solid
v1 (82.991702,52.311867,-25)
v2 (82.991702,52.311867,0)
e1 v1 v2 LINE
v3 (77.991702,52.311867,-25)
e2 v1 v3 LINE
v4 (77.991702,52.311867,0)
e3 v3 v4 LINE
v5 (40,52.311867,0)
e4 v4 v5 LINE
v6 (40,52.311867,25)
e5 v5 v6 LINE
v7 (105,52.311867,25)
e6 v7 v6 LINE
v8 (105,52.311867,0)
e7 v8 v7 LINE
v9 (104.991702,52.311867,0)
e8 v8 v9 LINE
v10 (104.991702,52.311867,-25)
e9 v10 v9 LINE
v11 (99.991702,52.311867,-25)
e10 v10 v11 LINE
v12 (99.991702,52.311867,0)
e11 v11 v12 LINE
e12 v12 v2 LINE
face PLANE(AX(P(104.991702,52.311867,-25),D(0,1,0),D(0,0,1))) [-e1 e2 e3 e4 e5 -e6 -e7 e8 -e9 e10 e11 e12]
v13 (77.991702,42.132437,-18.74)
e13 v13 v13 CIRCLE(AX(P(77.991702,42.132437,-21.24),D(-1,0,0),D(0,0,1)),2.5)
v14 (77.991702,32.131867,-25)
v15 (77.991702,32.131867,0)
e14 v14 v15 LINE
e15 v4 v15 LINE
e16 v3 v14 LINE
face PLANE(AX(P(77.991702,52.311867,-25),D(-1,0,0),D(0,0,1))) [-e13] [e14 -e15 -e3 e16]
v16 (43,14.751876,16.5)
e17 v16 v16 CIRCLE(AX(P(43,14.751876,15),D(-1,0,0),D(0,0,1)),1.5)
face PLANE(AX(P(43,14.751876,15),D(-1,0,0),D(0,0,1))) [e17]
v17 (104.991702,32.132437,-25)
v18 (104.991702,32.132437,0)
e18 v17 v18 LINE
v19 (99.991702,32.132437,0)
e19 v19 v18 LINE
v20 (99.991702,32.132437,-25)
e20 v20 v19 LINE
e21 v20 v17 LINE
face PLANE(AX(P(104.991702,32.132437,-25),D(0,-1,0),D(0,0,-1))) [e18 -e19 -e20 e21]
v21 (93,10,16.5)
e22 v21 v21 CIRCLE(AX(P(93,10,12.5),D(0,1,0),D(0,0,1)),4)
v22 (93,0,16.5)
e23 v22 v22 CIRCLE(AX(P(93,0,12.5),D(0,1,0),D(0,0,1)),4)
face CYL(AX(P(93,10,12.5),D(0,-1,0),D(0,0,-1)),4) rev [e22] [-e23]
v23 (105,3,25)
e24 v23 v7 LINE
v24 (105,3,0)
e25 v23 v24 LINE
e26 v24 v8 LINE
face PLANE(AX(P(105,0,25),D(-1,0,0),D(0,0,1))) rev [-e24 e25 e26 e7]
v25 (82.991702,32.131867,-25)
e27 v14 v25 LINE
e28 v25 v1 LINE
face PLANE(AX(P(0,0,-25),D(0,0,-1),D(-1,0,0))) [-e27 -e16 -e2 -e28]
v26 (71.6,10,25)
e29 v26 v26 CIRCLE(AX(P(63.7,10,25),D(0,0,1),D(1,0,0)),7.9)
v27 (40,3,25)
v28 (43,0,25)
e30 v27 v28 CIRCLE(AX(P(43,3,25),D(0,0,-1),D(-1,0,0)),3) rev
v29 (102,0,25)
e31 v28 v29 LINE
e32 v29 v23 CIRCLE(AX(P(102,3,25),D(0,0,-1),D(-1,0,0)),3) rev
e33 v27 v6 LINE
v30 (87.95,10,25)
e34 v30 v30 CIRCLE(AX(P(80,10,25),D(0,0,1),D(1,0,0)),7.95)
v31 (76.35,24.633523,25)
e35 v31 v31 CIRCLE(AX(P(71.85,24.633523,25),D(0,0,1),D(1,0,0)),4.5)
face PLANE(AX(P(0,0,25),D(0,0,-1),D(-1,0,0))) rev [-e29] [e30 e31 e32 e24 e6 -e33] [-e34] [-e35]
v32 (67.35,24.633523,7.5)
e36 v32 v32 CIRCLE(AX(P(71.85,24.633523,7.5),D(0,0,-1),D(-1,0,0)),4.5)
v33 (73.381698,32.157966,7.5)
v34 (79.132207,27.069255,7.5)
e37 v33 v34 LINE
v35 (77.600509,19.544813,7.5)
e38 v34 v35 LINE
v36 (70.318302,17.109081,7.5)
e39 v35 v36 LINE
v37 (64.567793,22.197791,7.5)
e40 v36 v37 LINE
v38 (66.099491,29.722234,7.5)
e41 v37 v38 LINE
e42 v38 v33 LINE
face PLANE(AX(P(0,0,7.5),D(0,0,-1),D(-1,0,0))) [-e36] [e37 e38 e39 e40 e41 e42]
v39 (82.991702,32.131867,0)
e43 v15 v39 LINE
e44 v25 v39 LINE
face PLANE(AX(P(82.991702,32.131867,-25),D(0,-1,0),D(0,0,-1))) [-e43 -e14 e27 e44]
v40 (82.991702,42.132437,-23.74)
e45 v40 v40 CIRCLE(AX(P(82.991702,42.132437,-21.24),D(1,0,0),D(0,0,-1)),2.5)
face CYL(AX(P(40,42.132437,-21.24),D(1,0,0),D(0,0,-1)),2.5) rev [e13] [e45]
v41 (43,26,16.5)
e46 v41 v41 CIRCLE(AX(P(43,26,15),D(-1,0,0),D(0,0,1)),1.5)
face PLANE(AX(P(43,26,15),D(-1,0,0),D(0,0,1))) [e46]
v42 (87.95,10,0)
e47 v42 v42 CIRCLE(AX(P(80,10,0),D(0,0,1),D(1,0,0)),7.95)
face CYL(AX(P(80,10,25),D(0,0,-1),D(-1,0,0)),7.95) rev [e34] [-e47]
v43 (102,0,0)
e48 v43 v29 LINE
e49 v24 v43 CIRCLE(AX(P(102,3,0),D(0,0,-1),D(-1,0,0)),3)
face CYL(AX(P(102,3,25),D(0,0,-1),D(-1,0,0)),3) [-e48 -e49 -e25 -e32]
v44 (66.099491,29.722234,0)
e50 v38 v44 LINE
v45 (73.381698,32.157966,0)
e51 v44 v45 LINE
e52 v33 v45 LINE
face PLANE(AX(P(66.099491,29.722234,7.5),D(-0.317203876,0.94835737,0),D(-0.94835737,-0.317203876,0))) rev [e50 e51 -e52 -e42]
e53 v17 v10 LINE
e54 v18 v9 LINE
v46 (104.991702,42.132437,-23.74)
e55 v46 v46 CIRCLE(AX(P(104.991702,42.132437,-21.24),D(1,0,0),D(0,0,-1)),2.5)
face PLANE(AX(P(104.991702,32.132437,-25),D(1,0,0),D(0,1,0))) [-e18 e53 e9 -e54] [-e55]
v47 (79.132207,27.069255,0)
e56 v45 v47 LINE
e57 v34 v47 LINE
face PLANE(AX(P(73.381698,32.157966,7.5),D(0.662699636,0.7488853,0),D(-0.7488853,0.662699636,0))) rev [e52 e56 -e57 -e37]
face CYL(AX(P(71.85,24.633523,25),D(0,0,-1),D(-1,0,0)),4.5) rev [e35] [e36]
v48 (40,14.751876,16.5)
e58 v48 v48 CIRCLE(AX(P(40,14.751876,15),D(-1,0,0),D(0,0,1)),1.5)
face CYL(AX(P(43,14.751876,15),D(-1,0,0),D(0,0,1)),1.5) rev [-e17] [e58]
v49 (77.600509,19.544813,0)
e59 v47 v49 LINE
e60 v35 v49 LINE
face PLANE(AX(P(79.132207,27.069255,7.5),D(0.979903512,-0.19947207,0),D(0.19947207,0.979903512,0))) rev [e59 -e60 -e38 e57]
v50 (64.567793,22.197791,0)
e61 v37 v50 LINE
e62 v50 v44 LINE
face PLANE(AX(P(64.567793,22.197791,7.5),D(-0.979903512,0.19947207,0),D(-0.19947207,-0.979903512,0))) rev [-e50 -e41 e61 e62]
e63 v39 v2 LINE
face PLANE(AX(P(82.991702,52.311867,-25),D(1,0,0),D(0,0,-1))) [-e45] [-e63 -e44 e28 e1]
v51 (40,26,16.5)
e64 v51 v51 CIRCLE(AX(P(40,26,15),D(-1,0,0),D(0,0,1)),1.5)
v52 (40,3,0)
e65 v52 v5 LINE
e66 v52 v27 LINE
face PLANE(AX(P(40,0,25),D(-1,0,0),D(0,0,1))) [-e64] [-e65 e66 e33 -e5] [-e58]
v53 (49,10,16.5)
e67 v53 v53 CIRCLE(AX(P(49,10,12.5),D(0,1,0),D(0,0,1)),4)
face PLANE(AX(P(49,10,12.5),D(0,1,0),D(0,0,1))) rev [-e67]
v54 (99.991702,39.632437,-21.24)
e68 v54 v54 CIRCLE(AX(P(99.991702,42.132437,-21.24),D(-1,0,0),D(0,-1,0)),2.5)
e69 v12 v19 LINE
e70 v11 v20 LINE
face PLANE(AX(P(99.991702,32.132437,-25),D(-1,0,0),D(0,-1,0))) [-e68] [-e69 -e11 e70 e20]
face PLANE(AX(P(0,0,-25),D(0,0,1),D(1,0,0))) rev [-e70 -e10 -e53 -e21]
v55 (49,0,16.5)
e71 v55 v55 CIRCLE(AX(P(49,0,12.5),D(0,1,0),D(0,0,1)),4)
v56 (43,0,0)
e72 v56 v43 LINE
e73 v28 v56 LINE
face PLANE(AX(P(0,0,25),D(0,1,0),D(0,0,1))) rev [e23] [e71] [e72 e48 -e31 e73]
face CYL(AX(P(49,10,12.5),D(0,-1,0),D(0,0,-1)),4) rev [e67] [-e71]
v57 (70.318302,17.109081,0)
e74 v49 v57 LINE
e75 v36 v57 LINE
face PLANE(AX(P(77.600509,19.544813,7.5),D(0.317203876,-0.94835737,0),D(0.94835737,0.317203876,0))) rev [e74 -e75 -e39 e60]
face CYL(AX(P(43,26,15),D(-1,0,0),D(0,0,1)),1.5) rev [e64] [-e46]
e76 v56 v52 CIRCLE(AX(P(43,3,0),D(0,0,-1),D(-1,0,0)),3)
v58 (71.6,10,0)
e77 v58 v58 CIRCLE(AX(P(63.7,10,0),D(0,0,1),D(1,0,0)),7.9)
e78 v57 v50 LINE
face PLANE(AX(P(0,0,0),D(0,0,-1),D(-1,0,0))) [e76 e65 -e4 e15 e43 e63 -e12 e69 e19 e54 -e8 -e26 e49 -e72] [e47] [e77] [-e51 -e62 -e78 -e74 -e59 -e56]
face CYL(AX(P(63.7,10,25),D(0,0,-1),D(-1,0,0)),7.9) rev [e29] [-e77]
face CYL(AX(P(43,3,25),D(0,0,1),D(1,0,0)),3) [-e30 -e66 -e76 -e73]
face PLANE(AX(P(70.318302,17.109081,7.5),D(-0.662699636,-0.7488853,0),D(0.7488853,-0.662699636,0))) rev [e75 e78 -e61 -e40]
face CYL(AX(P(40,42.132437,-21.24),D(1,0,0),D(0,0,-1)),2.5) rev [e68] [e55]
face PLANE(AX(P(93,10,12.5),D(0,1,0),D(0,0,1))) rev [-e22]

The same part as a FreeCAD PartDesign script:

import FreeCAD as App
import Part
import Sketcher


def edges_at(feature, points):
    """Names of the edges that pass closest to the given points."""
    edges = feature.Shape.Edges
    near = lambda p: min(range(len(edges)), key=lambda i: edges[i].distToShape(Part.Vertex(*p))[0])
    return sorted({f"Edge{near(p) + 1}" for p in points})

doc = App.newDocument("Part")
body = doc.addObject("PartDesign::Body", "Body")

# Sketch on XY plane
sketch1 = body.newObject("Sketcher::SketchObject", "Sketch")
sketch1.AttachmentSupport = (doc.getObject("XY_Plane"), [""])
sketch1.MapMode = "FlatFace"
sketch1.addGeometry([
    Part.LineSegment(App.Vector(0, 80, 0), App.Vector(0, 0, 0)),
    Part.LineSegment(App.Vector(0, 0, 0), App.Vector(105, 0, 0)),
    Part.LineSegment(App.Vector(105, 0, 0), App.Vector(105, 80, 0)),
    Part.LineSegment(App.Vector(105, 80, 0), App.Vector(0, 80, 0)),
], False)
sketch1.addConstraint([
    Sketcher.Constraint("Coincident", 0, 2, 1, 1),
    Sketcher.Constraint("Coincident", 1, 2, 2, 1),
    Sketcher.Constraint("Coincident", 2, 2, 3, 1),
    Sketcher.Constraint("Coincident", 3, 2, 0, 1),
    Sketcher.Constraint("Vertical", 0),
    Sketcher.Constraint("Horizontal", 1),
    Sketcher.Constraint("Vertical", 2),
    Sketcher.Constraint("Horizontal", 3),
    Sketcher.Constraint("Coincident", 0, 2, -1, 1),
    Sketcher.Constraint("DistanceX", 1, 1, 1, 2, 105.0),
    Sketcher.Constraint("DistanceY", 0, 2, 0, 1, 80.0),
])
pad1 = body.newObject("PartDesign::Pad", "Pad")
pad1.Profile = sketch1
pad1.Length = 25

# Sketch on XY plane
sketch2 = body.newObject("Sketcher::SketchObject", "Sketch001")
sketch2.AttachmentSupport = (doc.getObject("XY_Plane"), [""])
sketch2.MapMode = "FlatFace"
sketch2.addGeometry([
    Part.Circle(App.Vector(63.7, 10, 0), App.Vector(0, 0, 1), 7.9),
    Part.Circle(App.Vector(80, 10, 0), App.Vector(0, 0, 1), 8),
    Part.Circle(App.Vector(71.8, 24.6, 0), App.Vector(0, 0, 1), 4.5),
], False)
sketch2.addConstraint([
    Sketcher.Constraint("Horizontal", 0, 3, 1, 3),
    Sketcher.Constraint("Diameter", 2, 9.0),
    Sketcher.Constraint("Diameter", 0, 15.8),
    Sketcher.Constraint("Diameter", 1, 15.9),
    Sketcher.Constraint("DistanceY", -1, 1, 0, 3, 10.0),
    Sketcher.Constraint("DistanceX", -1, 1, 1, 3, 80.0),
    Sketcher.Constraint("DistanceX", -1, 1, 0, 3, 63.7),
    Sketcher.Constraint("DistanceX", -1, 1, 2, 3, 71.85),
    Sketcher.Constraint("DistanceY", -1, 1, 2, 3, 24.633523),
])
pocket1 = body.newObject("PartDesign::Pocket", "Pocket")
pocket1.Profile = sketch2
pocket1.Type = "ThroughAll"
pocket1.Reversed = True

# Sketch on XZ plane
sketch3 = body.newObject("Sketcher::SketchObject", "Sketch002")
sketch3.AttachmentSupport = (doc.getObject("XZ_Plane"), [""])
sketch3.MapMode = "FlatFace"
sketch3.addGeometry([
    Part.Circle(App.Vector(49, 12.5, 0), App.Vector(0, 0, 1), 4),
    Part.Circle(App.Vector(93, 12.5, 0), App.Vector(0, 0, 1), 4),
], False)
sketch3.addConstraint([
    Sketcher.Constraint("Equal", 0, 1),
    Sketcher.Constraint("Horizontal", 0, 3, 1, 3),
    Sketcher.Constraint("Diameter", 0, 8.0),
    Sketcher.Constraint("DistanceX", -1, 1, 0, 3, 49.0),
    Sketcher.Constraint("DistanceX", -1, 1, 1, 3, 93.0),
    Sketcher.Constraint("DistanceY", -1, 1, 0, 3, 12.5),
])
pocket2 = body.newObject("PartDesign::Pocket", "Pocket001")
pocket2.Profile = sketch3
pocket2.Length = 10

# Sketch on XY plane
sketch4 = body.newObject("Sketcher::SketchObject", "Sketch003")
sketch4.AttachmentSupport = (doc.getObject("XY_Plane"), [""])
sketch4.MapMode = "FlatFace"
sketch4.addGeometry([
    Part.LineSegment(App.Vector(0, 80, 0), App.Vector(0, 0, 0)),
    Part.LineSegment(App.Vector(0, 0, 0), App.Vector(40, 0, 0)),
    Part.LineSegment(App.Vector(40, 0, 0), App.Vector(40, 80, 0)),
    Part.LineSegment(App.Vector(40, 80, 0), App.Vector(0, 80, 0)),
], False)
sketch4.addConstraint([
    Sketcher.Constraint("Coincident", 0, 2, 1, 1),
    Sketcher.Constraint("Coincident", 1, 2, 2, 1),
    Sketcher.Constraint("Coincident", 2, 2, 3, 1),
    Sketcher.Constraint("Coincident", 3, 2, 0, 1),
    Sketcher.Constraint("Vertical", 0),
    Sketcher.Constraint("Horizontal", 1),
    Sketcher.Constraint("Vertical", 2),
    Sketcher.Constraint("Horizontal", 3),
    Sketcher.Constraint("Coincident", 0, 2, -1, 1),
    Sketcher.Constraint("DistanceX", 1, 1, 1, 2, 40.0),
    Sketcher.Constraint("DistanceY", 0, 2, 0, 1, 80.0),
])
pocket3 = body.newObject("PartDesign::Pocket", "Pocket002")
pocket3.Profile = sketch4
pocket3.Type = "ThroughAll"
pocket3.Reversed = True

# Sketch on XY plane
sketch5 = body.newObject("Sketcher::SketchObject", "Sketch004")
sketch5.AttachmentSupport = (doc.getObject("XY_Plane"), [""])
sketch5.MapMode = "FlatFace"
sketch5.addGeometry([
    Part.LineSegment(App.Vector(40, 80, 0), App.Vector(40, 77.3, 0)),
    Part.LineSegment(App.Vector(40, 77.3, 0), App.Vector(105, 77.3, 0)),
    Part.LineSegment(App.Vector(105, 77.3, 0), App.Vector(105, 80, 0)),
    Part.LineSegment(App.Vector(105, 80, 0), App.Vector(40, 80, 0)),
], False)
sketch5.addConstraint([
    Sketcher.Constraint("Coincident", 0, 2, 1, 1),
    Sketcher.Constraint("Coincident", 1, 2, 2, 1),
    Sketcher.Constraint("Coincident", 2, 2, 3, 1),
    Sketcher.Constraint("Coincident", 3, 2, 0, 1),
    Sketcher.Constraint("Vertical", 0),
    Sketcher.Constraint("Horizontal", 1),
    Sketcher.Constraint("Vertical", 2),
    Sketcher.Constraint("Horizontal", 3),
    Sketcher.Constraint("DistanceX", 1, 1, 1, 2, 65.0),
    Sketcher.Constraint("DistanceX", -1, 1, 0, 2, 40.0),
    Sketcher.Constraint("DistanceY", -1, 1, 2, 2, 80.0),
    Sketcher.Constraint("DistanceY", 0, 2, 0, 1, 2.688133),
])
pocket4 = body.newObject("PartDesign::Pocket", "Pocket003")
pocket4.Profile = sketch5
pocket4.Type = "ThroughAll"
pocket4.Reversed = True
doc.recompute()

fillet = body.newObject("PartDesign::Fillet", "Fillet")
fillet.Base = (pocket4, edges_at(pocket4, [
    (40, 0, 12.5),
    (105, 77.312, 12.5),
    (40, 77.312, 12.5),
    (105, 0, 12.5),
]))
fillet.Radius = 3

# Sketch on XY plane
sketch6 = body.newObject("Sketcher::SketchObject", "Sketch005")
sketch6.AttachmentSupport = (doc.getObject("XY_Plane"), [""])
sketch6.MapMode = "FlatFace"
sketch6.addGeometry([
    Part.LineSegment(App.Vector(100, 52, 0), App.Vector(100, 32, 0)),  # 0
    Part.LineSegment(App.Vector(100, 32, 0), App.Vector(105, 32, 0)),  # 1
    Part.LineSegment(App.Vector(105, 32, 0), App.Vector(105, 52, 0)),  # 2
    Part.LineSegment(App.Vector(105, 52, 0), App.Vector(100, 52, 0)),  # 3
    Part.LineSegment(App.Vector(78, 52, 0), App.Vector(78, 32, 0)),  # 4
    Part.LineSegment(App.Vector(78, 32, 0), App.Vector(83, 32, 0)),  # 5
    Part.LineSegment(App.Vector(83, 32, 0), App.Vector(83, 52, 0)),  # 6
    Part.LineSegment(App.Vector(83, 52, 0), App.Vector(78, 52, 0)),  # 7
], False)
sketch6.addConstraint([
    Sketcher.Constraint("Coincident", 0, 2, 1, 1),
    Sketcher.Constraint("Coincident", 1, 2, 2, 1),
    Sketcher.Constraint("Coincident", 2, 2, 3, 1),
    Sketcher.Constraint("Coincident", 3, 2, 0, 1),
    Sketcher.Constraint("Coincident", 4, 2, 5, 1),
    Sketcher.Constraint("Coincident", 5, 2, 6, 1),
    Sketcher.Constraint("Coincident", 6, 2, 7, 1),
    Sketcher.Constraint("Coincident", 7, 2, 4, 1),
    Sketcher.Constraint("Vertical", 0),
    Sketcher.Constraint("Horizontal", 1),
    Sketcher.Constraint("Vertical", 2),
    Sketcher.Constraint("Horizontal", 3),
    Sketcher.Constraint("Vertical", 4),
    Sketcher.Constraint("Horizontal", 5),
    Sketcher.Constraint("Vertical", 6),
    Sketcher.Constraint("Horizontal", 7),
    Sketcher.Constraint("Horizontal", 3, 2, 6, 2),
    Sketcher.Constraint("Equal", 3, 5),
    Sketcher.Constraint("DistanceX", 1, 1, 1, 2, 5.0),
    Sketcher.Constraint("DistanceX", 4, 2, 0, 2, 22.0),
    Sketcher.Constraint("DistanceY", 4, 2, 4, 1, 20.18),
    Sketcher.Constraint("DistanceY", 0, 2, 0, 1, 20.17943),
    Sketcher.Constraint("DistanceX", -1, 1, 0, 2, 99.991702),
    Sketcher.Constraint("DistanceY", -1, 1, 0, 2, 32.132437),
])
pad2 = body.newObject("PartDesign::Pad", "Pad001")
pad2.Profile = sketch6
pad2.Length = 25
pad2.Reversed = True

# Sketch on YZ plane
sketch7 = body.newObject("Sketcher::SketchObject", "Sketch006")
sketch7.AttachmentSupport = (doc.getObject("YZ_Plane"), [""])
sketch7.MapMode = "FlatFace"
sketch7.AttachmentOffset = App.Placement(App.Vector(0, 0, 104.991702), App.Rotation())
sketch7.addGeometry(Part.Circle(App.Vector(42.1, -21.2, 0), App.Vector(0, 0, 1), 2.5), False)
sketch7.addConstraint([
    Sketcher.Constraint("Diameter", 0, 5.0),
    Sketcher.Constraint("DistanceY", 0, 3, -1, 1, 21.24),
    Sketcher.Constraint("DistanceX", -1, 1, 0, 3, 42.132437),
])
pocket5 = body.newObject("PartDesign::Pocket", "Pocket004")
pocket5.Profile = sketch7
pocket5.Type = "ThroughAll"

# Sketch on XY plane
sketch8 = body.newObject("Sketcher::SketchObject", "Sketch007")
sketch8.AttachmentSupport = (doc.getObject("XY_Plane"), [""])
sketch8.MapMode = "FlatFace"
sketch8.addGeometry([
    Part.LineSegment(App.Vector(73, 32, 0), App.Vector(79, 27, 0)),  # 0
    Part.LineSegment(App.Vector(79, 27, 0), App.Vector(78, 20, 0)),  # 1
    Part.LineSegment(App.Vector(78, 20, 0), App.Vector(70, 17, 0)),  # 2
    Part.LineSegment(App.Vector(70, 17, 0), App.Vector(65, 22, 0)),  # 3
    Part.LineSegment(App.Vector(65, 22, 0), App.Vector(66, 30, 0)),  # 4
    Part.LineSegment(App.Vector(66, 30, 0), App.Vector(73, 32, 0)),  # 5
], False)
sketch8.addConstraint([
    Sketcher.Constraint("Coincident", 0, 2, 1, 1),
    Sketcher.Constraint("Coincident", 1, 2, 2, 1),
    Sketcher.Constraint("Coincident", 2, 2, 3, 1),
    Sketcher.Constraint("Coincident", 3, 2, 4, 1),
    Sketcher.Constraint("Coincident", 4, 2, 5, 1),
    Sketcher.Constraint("Coincident", 5, 2, 0, 1),
    Sketcher.Constraint("Parallel", 0, 3),
    Sketcher.Constraint("Parallel", 1, 4),
    Sketcher.Constraint("Parallel", 2, 5),
    Sketcher.Constraint("Equal", 0, 1),
    Sketcher.Constraint("Equal", 1, 2),
    Sketcher.Constraint("Equal", 2, 3),
    Sketcher.Constraint("Distance", 0, 7.678759),
    Sketcher.Constraint("DistanceX", -1, 1, 1, 2, 77.600509),
    Sketcher.Constraint("DistanceY", -1, 1, 2, 2, 17.109081),
    Sketcher.Constraint("DistanceY", -1, 1, 3, 2, 22.197791),
    Sketcher.Constraint("DistanceX", -1, 1, 4, 2, 66.099491),
    Sketcher.Constraint("DistanceY", 2, 2, 1, 2, 2.435732),
])
pocket6 = body.newObject("PartDesign::Pocket", "Pocket005")
pocket6.Profile = sketch8
pocket6.Length = 7.5
pocket6.Reversed = True

# Sketch on XY plane
sketch9 = body.newObject("Sketcher::SketchObject", "Sketch008")
sketch9.AttachmentSupport = (doc.getObject("XY_Plane"), [""])
sketch9.MapMode = "FlatFace"
sketch9.addGeometry([
    Part.LineSegment(App.Vector(106, 77, 0), App.Vector(106, 52, 0)),
    Part.LineSegment(App.Vector(106, 52, 0), App.Vector(40, 52, 0)),
    Part.LineSegment(App.Vector(40, 52, 0), App.Vector(40, 77, 0)),
    Part.LineSegment(App.Vector(40, 77, 0), App.Vector(106, 77, 0)),
], False)
sketch9.addConstraint([
    Sketcher.Constraint("Coincident", 0, 2, 1, 1),
    Sketcher.Constraint("Coincident", 1, 2, 2, 1),
    Sketcher.Constraint("Coincident", 2, 2, 3, 1),
    Sketcher.Constraint("Coincident", 3, 2, 0, 1),
    Sketcher.Constraint("Vertical", 0),
    Sketcher.Constraint("Horizontal", 1),
    Sketcher.Constraint("Vertical", 2),
    Sketcher.Constraint("Horizontal", 3),
    Sketcher.Constraint("DistanceX", 1, 2, 1, 1, 65.690679),
    Sketcher.Constraint("DistanceY", 0, 2, 0, 1, 25.018752),
    Sketcher.Constraint("DistanceX", -1, 1, 0, 2, 105.676011),
    Sketcher.Constraint("DistanceY", -1, 1, 2, 2, 77.330619),
])
pocket7 = body.newObject("PartDesign::Pocket", "Pocket006")
pocket7.Profile = sketch9
pocket7.Type = "ThroughAll"
pocket7.Reversed = True

# Sketch on YZ plane
sketch10 = body.newObject("Sketcher::SketchObject", "Sketch009")
sketch10.AttachmentSupport = (doc.getObject("YZ_Plane"), [""])
sketch10.MapMode = "FlatFace"
sketch10.AttachmentOffset = App.Placement(App.Vector(0, 0, 40), App.Rotation())
sketch10.addGeometry([
    Part.Circle(App.Vector(14.8, 15, 0), App.Vector(0, 0, 1), 1.5),
    Part.Circle(App.Vector(26, 15, 0), App.Vector(0, 0, 1), 1.5),
], False)
sketch10.addConstraint([
    Sketcher.Constraint("Equal", 0, 1),
    Sketcher.Constraint("Horizontal", 0, 3, 1, 3),
    Sketcher.Constraint("Diameter", 0, 3.0),
    Sketcher.Constraint("DistanceY", -1, 1, 0, 3, 15.0),
    Sketcher.Constraint("DistanceX", -1, 1, 1, 3, 26.0),
    Sketcher.Constraint("DistanceX", -1, 1, 0, 3, 14.751876),
])
pocket8 = body.newObject("PartDesign::Pocket", "Pocket007")
pocket8.Profile = sketch10
pocket8.Length = 3
pocket8.Reversed = True

doc.recompute()
